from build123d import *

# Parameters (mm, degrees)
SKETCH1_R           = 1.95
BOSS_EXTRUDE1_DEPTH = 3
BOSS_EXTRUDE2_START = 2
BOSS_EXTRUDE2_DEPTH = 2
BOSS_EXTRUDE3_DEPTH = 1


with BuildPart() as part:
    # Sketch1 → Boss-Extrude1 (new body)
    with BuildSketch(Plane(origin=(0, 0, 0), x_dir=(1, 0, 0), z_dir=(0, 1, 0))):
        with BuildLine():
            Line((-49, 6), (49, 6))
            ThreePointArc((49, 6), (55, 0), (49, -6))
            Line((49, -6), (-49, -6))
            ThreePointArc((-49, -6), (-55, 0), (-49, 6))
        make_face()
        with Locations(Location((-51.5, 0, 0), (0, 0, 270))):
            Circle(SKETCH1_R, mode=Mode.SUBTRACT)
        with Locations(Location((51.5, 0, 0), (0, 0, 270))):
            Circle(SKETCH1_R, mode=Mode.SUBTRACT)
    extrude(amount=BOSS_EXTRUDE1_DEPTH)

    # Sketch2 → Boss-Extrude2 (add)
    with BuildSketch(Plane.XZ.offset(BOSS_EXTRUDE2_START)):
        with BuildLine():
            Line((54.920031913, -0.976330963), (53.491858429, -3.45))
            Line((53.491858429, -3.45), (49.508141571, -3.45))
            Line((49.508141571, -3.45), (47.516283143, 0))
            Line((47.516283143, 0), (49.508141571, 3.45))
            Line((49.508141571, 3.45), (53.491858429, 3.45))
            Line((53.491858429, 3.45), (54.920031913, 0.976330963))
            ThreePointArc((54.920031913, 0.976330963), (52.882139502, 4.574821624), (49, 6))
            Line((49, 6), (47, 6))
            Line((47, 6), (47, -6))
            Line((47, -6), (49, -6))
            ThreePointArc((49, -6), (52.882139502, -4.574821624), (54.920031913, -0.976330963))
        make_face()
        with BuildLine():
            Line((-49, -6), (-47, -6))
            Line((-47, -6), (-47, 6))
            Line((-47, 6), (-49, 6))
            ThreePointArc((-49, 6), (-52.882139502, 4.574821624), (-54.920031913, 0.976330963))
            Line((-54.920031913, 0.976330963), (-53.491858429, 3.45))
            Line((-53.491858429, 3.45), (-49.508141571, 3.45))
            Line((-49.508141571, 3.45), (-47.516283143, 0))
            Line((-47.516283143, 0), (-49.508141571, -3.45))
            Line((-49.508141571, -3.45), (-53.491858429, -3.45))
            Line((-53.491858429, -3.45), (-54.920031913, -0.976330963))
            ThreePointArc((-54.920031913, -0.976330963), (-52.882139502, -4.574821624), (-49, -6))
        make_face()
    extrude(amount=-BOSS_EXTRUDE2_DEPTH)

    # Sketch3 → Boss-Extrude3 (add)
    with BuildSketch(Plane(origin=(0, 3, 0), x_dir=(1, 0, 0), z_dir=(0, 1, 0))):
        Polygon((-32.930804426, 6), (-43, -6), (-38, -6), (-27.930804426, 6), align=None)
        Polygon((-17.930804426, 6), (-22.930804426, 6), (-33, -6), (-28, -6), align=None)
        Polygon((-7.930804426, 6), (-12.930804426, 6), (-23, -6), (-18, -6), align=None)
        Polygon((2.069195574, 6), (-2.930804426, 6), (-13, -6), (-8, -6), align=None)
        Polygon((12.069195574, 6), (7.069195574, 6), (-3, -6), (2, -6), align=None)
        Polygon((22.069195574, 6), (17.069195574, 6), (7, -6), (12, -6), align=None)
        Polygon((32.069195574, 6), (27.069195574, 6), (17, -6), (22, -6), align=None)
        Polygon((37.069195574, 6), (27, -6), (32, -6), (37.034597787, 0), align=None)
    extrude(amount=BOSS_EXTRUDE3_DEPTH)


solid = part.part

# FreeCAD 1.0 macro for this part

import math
import FreeCAD as App
import Part
import Sketcher
Q = App.Units.Quantity


def add_polygon(sketch, points):
    """Adds a closed chain of lines whose ends are joined by coincident constraints."""
    first, n = sketch.GeometryCount, len(points)
    for a, b in zip(points, points[1:] + points[:1]):
        sketch.addGeometry(Part.LineSegment(App.Vector(*a, 0), App.Vector(*b, 0)), False)
    for i in range(n):
        sketch.addConstraint(Sketcher.Constraint("Coincident", first + i, 2, first + (i + 1) % n, 1))

doc = App.newDocument("Part")
params = doc.addObject("Spreadsheet::Sheet", "Params")
for row, (alias, value) in enumerate([
    ("sketch1_radius", "6 mm"),
    ("sketch1_diameter", "3.9 mm"),
    ("sketch1_width", "98 mm"),
    ("pad1_length", "3 mm"),
    ("sketch2_radius", "6 mm"),
    ("sketch2_width", "2 mm"),
    ("pad2_length", "2 mm"),
    ("sketch3_width", "5 mm"),
    ("pad3_length", "1 mm"),
], start=1):
    params.set(f"A{row}", alias)
    params.set(f"B{row}", "=" + value)
    params.setAlias(f"B{row}", alias)

body = doc.addObject("PartDesign::Body", "Body")

sketch1 = body.newObject("Sketcher::SketchObject", "Sketch")
sketch1.AttachmentSupport = (doc.getObject("XZ_Plane"), [""])
sketch1.MapMode = "FlatFace"
sketch1.addGeometry([
    Part.LineSegment(App.Vector(49, -6, 0), App.Vector(-49, -6, 0)),
    Part.ArcOfCircle(Part.Circle(App.Vector(-49, 0, 0), App.Vector(0, 0, 1), 6), math.radians(90), math.radians(270)),
    Part.LineSegment(App.Vector(-49, 6, 0), App.Vector(49, 6, 0)),
    Part.ArcOfCircle(Part.Circle(App.Vector(49, 0, 0), App.Vector(0, 0, 1), 6), math.radians(-90), math.radians(90)),
    Part.Circle(App.Vector(51.5, 0, 0), App.Vector(0, 0, 1), 1.95),
    Part.Circle(App.Vector(-51.5, 0, 0), App.Vector(0, 0, 1), 1.95),
], False)
sketch1.addConstraint([
    Sketcher.Constraint("Tangent", 0, 2, 1, 2),
    Sketcher.Constraint("Tangent", 1, 1, 2, 1),
    Sketcher.Constraint("Tangent", 2, 2, 3, 2),
    Sketcher.Constraint("Tangent", 3, 1, 0, 1),
    Sketcher.Constraint("Horizontal", 0),
    Sketcher.Constraint("Horizontal", 2),
    Sketcher.Constraint("Equal", 4, 5),
    Sketcher.Constraint("Symmetric", 1, 3, 3, 3, -1, 1),
    Sketcher.Constraint("Symmetric", 4, 3, 5, 3, -1, 1),
    Sketcher.Constraint("PointOnObject", 4, 3, -1),
    Sketcher.Constraint("Radius", 1, 6.0),
    Sketcher.Constraint("Diameter", 4, 3.9),
    Sketcher.Constraint("DistanceX", 0, 2, 0, 1, 98.0),
    Sketcher.Constraint("DistanceX", 5, 3, 4, 3, 103.0),
])
sketch1.setExpression("Constraints[10]", "Params.sketch1_radius")
sketch1.setExpression("Constraints[11]", "Params.sketch1_diameter")
sketch1.setExpression("Constraints[12]", "Params.sketch1_width")
pad1 = body.newObject("PartDesign::Pad", "Pad")
pad1.Profile = sketch1
pad1.setExpression("Length", "Params.pad1_length")
pad1.Reversed = True

sketch2 = body.newObject("Sketcher::SketchObject", "Sketch001")
sketch2.AttachmentSupport = (doc.getObject("XZ_Plane"), [""])
sketch2.MapMode = "FlatFace"
sketch2.AttachmentOffset = App.Placement(App.Vector(0, 0, 2), App.Rotation())
sketch2.addGeometry([
    Part.LineSegment(App.Vector(54.920032, -0.976331, 0), App.Vector(53.491858, -3.45, 0)),
    Part.LineSegment(App.Vector(53.491858, -3.45, 0), App.Vector(49.508142, -3.45, 0)),
    Part.LineSegment(App.Vector(49.508142, -3.45, 0), App.Vector(47.516283, 0, 0)),
    Part.LineSegment(App.Vector(47.516283, 0, 0), App.Vector(49.508142, 3.45, 0)),
    Part.LineSegment(App.Vector(49.508142, 3.45, 0), App.Vector(53.491858, 3.45, 0)),
    Part.LineSegment(App.Vector(53.491858, 3.45, 0), App.Vector(54.920032, 0.976331, 0)),
    Part.ArcOfCircle(Part.Circle(App.Vector(49, 0, 0), App.Vector(0, 0, 1), 6), math.radians(9.364916), math.radians(90)),
    Part.LineSegment(App.Vector(49, 6, 0), App.Vector(47, 6, 0)),
    Part.LineSegment(App.Vector(47, 6, 0), App.Vector(47, -6, 0)),
    Part.LineSegment(App.Vector(47, -6, 0), App.Vector(49, -6, 0)),
    Part.ArcOfCircle(Part.Circle(App.Vector(49, 0, 0), App.Vector(0, 0, 1), 6), math.radians(-90), math.radians(-9.364916)),
    Part.LineSegment(App.Vector(-49, -6, 0), App.Vector(-47, -6, 0)),
    Part.LineSegment(App.Vector(-47, -6, 0), App.Vector(-47, 6, 0)),
    Part.LineSegment(App.Vector(-47, 6, 0), App.Vector(-49, 6, 0)),
    Part.ArcOfCircle(Part.Circle(App.Vector(-49, 0, 0), App.Vector(0, 0, 1), 6), math.radians(90), math.radians(170.635084)),
    Part.LineSegment(App.Vector(-54.920032, 0.976331, 0), App.Vector(-53.491858, 3.45, 0)),
    Part.LineSegment(App.Vector(-53.491858, 3.45, 0), App.Vector(-49.508142, 3.45, 0)),
    Part.LineSegment(App.Vector(-49.508142, 3.45, 0), App.Vector(-47.516283, 0, 0)),
    Part.LineSegment(App.Vector(-47.516283, 0, 0), App.Vector(-49.508142, -3.45, 0)),
    Part.LineSegment(App.Vector(-49.508142, -3.45, 0), App.Vector(-53.491858, -3.45, 0)),
    Part.LineSegment(App.Vector(-53.491858, -3.45, 0), App.Vector(-54.920032, -0.976331, 0)),
    Part.ArcOfCircle(Part.Circle(App.Vector(-49, 0, 0), App.Vector(0, 0, 1), 6), math.radians(-170.635084), math.radians(-90)),
], False)
sketch2.addConstraint([
    Sketcher.Constraint("Coincident", 0, 2, 1, 1),
    Sketcher.Constraint("Coincident", 1, 2, 2, 1),
    Sketcher.Constraint("Coincident", 2, 2, 3, 1),
    Sketcher.Constraint("Coincident", 3, 2, 4, 1),
    Sketcher.Constraint("Coincident", 4, 2, 5, 1),
    Sketcher.Constraint("Coincident", 5, 2, 6, 1),
    Sketcher.Constraint("Tangent", 6, 2, 7, 1),
    Sketcher.Constraint("Coincident", 7, 2, 8, 1),
    Sketcher.Constraint("Coincident", 8, 2, 9, 1),
    Sketcher.Constraint("Tangent", 9, 2, 10, 1),
    Sketcher.Constraint("Coincident", 10, 2, 0, 1),
    Sketcher.Constraint("Coincident", 11, 2, 12, 1),
    Sketcher.Constraint("Coincident", 12, 2, 13, 1),
    Sketcher.Constraint("Tangent", 13, 2, 14, 1),
    Sketcher.Constraint("Coincident", 14, 2, 15, 1),
    Sketcher.Constraint("Coincident", 15, 2, 16, 1),
    Sketcher.Constraint("Coincident", 16, 2, 17, 1),
    Sketcher.Constraint("Coincident", 17, 2, 18, 1),
    Sketcher.Constraint("Coincident", 18, 2, 19, 1),
    Sketcher.Constraint("Coincident", 19, 2, 20, 1),
    Sketcher.Constraint("Coincident", 20, 2, 21, 1),
    Sketcher.Constraint("Tangent", 21, 2, 11, 1),
    Sketcher.Constraint("Horizontal", 1),
    Sketcher.Constraint("Horizontal", 4),
    Sketcher.Constraint("Horizontal", 7),
    Sketcher.Constraint("Vertical", 8),
    Sketcher.Constraint("Horizontal", 9),
    Sketcher.Constraint("Horizontal", 11),
    Sketcher.Constraint("Vertical", 12),
    Sketcher.Constraint("Horizontal", 13),
    Sketcher.Constraint("Horizontal", 16),
    Sketcher.Constraint("Horizontal", 19),
    Sketcher.Constraint("Coincident", 10, 3, 6, 3),
    Sketcher.Constraint("Coincident", 21, 3, 14, 3),
    Sketcher.Constraint("Equal", 6, 10),
    Sketcher.Constraint("Equal", 10, 14),
    Sketcher.Constraint("Equal", 14, 21),
    Sketcher.Constraint("Symmetric", 6, 3, 14, 3, -1, 1),
    Sketcher.Constraint("Symmetric", 0, 2, 15, 2, -1, 1),
    Sketcher.Constraint("Symmetric", 2, 2, 17, 2, -1, 1),
    Sketcher.Constraint("Symmetric", 3, 2, 18, 2, -1, 1),
    Sketcher.Constraint("Symmetric", 8, 2, 11, 2, -2),
    Sketcher.Constraint("Symmetric", 4, 2, 15, 2, -2),
    Sketcher.Constraint("PointOnObject", 2, 2, -1),
    Sketcher.Constraint("Parallel", 0, 3),
    Sketcher.Constraint("Parallel", 2, 5),
    Sketcher.Constraint("Parallel", 3, 15),
    Sketcher.Constraint("Parallel", 5, 17),
    Sketcher.Constraint("Parallel", 17, 20),
    Sketcher.Constraint("Horizontal", 5, 2, 14, 2),
    Sketcher.Constraint("Horizontal", 10, 2, 20, 2),
    Sketcher.Constraint("Radius", 6, 6.0),
    Sketcher.Constraint("DistanceX", 7, 2, 7, 1, 2.0),
    Sketcher.Constraint("Angle", 0, Q("-120 deg")),
    Sketcher.Constraint("DistanceX", -1, 1, 6, 3, 49.0),
    Sketcher.Constraint("DistanceY", 1, 2, 3, 2, 6.9),
    Sketcher.Constraint("DistanceX", 1, 2, 1, 1, 3.983717),
    Sketcher.Constraint("DistanceX", -1, 1, 0, 2, 53.491858),
])
sketch2.setExpression("Constraints[51]", "Params.sketch2_radius")
sketch2.setExpression("Constraints[52]", "Params.sketch2_width")
pad2 = body.newObject("PartDesign::Pad", "Pad001")
pad2.Profile = sketch2
pad2.setExpression("Length", "Params.pad2_length")
pad2.Reversed = True

sketch3 = body.newObject("Sketcher::SketchObject", "Sketch002")
sketch3.AttachmentSupport = (doc.getObject("XZ_Plane"), [""])
sketch3.MapMode = "FlatFace"
sketch3.AttachmentOffset = App.Placement(App.Vector(0, 0, -3), App.Rotation())
add_polygon(sketch3, [(-32.930804, -6), (-43, 6), (-38, 6), (-27.930804, -6)])
add_polygon(sketch3, [(-17.930804, -6), (-22.930804, -6), (-33, 6), (-28, 6)])
add_polygon(sketch3, [(-7.930804, -6), (-12.930804, -6), (-23, 6), (-18, 6)])
add_polygon(sketch3, [(2.069196, -6), (-2.930804, -6), (-13, 6), (-8, 6)])
add_polygon(sketch3, [(12.069196, -6), (7.069196, -6), (-3, 6), (2, 6)])
add_polygon(sketch3, [(22.069196, -6), (17.069196, -6), (7, 6), (12, 6)])
add_polygon(sketch3, [(32.069196, -6), (27.069196, -6), (17, 6), (22, 6)])
add_polygon(sketch3, [(37.069196, -6), (27, 6), (32, 6), (37.034598, 0)])
sketch3.addConstraint([
    Sketcher.Constraint("Horizontal", 1),
    Sketcher.Constraint("Horizontal", 3),
    Sketcher.Constraint("Horizontal", 4),
    Sketcher.Constraint("Horizontal", 6),
    Sketcher.Constraint("Horizontal", 8),
    Sketcher.Constraint("Horizontal", 10),
    Sketcher.Constraint("Horizontal", 12),
    Sketcher.Constraint("Horizontal", 14),
    Sketcher.Constraint("Horizontal", 16),
    Sketcher.Constraint("Horizontal", 18),
    Sketcher.Constraint("Horizontal", 20),
    Sketcher.Constraint("Horizontal", 22),
    Sketcher.Constraint("Horizontal", 24),
    Sketcher.Constraint("Horizontal", 26),
    Sketcher.Constraint("Horizontal", 29),
    Sketcher.Constraint("PointOnObject", 30, 2, -1),
    Sketcher.Constraint("Parallel", 0, 2),
    Sketcher.Constraint("Parallel", 2, 5),
    Sketcher.Constraint("Parallel", 5, 7),
    Sketcher.Constraint("Parallel", 7, 9),
    Sketcher.Constraint("Parallel", 9, 11),
    Sketcher.Constraint("Parallel", 11, 13),
    Sketcher.Constraint("Parallel", 13, 15),
    Sketcher.Constraint("Parallel", 15, 17),
    Sketcher.Constraint("Parallel", 17, 19),
    Sketcher.Constraint("Parallel", 19, 21),
    Sketcher.Constraint("Parallel", 21, 23),
    Sketcher.Constraint("Parallel", 23, 25),
    Sketcher.Constraint("Parallel", 25, 27),
    Sketcher.Constraint("Parallel", 27, 28),
    Sketcher.Constraint("Parallel", 28, 30),
    Sketcher.Constraint("Horizontal", 3, 2, 4, 2),
    Sketcher.Constraint("Horizontal", 1, 2, 5, 2),
    Sketcher.Constraint("Horizontal", 7, 2, 8, 2),
    Sketcher.Constraint("Horizontal", 6, 2, 9, 2),
    Sketcher.Constraint("Horizontal", 11, 2, 12, 2),
    Sketcher.Constraint("Horizontal", 10, 2, 13, 2),
    Sketcher.Constraint("Horizontal", 15, 2, 16, 2),
    Sketcher.Constraint("Horizontal", 14, 2, 17, 2),
    Sketcher.Constraint("Horizontal", 19, 2, 20, 2),
    Sketcher.Constraint("Horizontal", 18, 2, 21, 2),
    Sketcher.Constraint("Horizontal", 23, 2, 24, 2),
    Sketcher.Constraint("Horizontal", 22, 2, 25, 2),
    Sketcher.Constraint("Horizontal", 26, 2, 28, 2),
    Sketcher.Constraint("Horizontal", 27, 2, 31, 2),
    Sketcher.Constraint("Equal", 3, 4),
    Sketcher.Constraint("Equal", 6, 8),
    Sketcher.Constraint("Equal", 10, 12),
    Sketcher.Constraint("Equal", 14, 16),
    Sketcher.Constraint("Equal", 18, 20),
    Sketcher.Constraint("Equal", 22, 24),
    Sketcher.Constraint("Equal", 26, 29),
    Sketcher.Constraint("DistanceX", 1, 1, 1, 2, 5.0),
    Sketcher.Constraint("Angle", 0, Q("130 deg")),
    Sketcher.Constraint("DistanceX", 0, 2, -1, 1, 43.0),
    Sketcher.Constraint("DistanceY", -1, 1, 0, 2, 6.0),
    Sketcher.Constraint("DistanceY", 2, 2, -1, 1, 6.0),
    Sketcher.Constraint("DistanceX", 5, 2, -1, 1, 33.0),
    Sketcher.Constraint("DistanceX", 9, 2, -1, 1, 23.0),
    Sketcher.Constraint("DistanceX", 13, 2, -1, 1, 13.0),
    Sketcher.Constraint("DistanceX", 17, 2, -1, 1, 3.0),
    Sketcher.Constraint("DistanceX", -1, 1, 21, 2, 7.0),
    Sketcher.Constraint("DistanceX", -1, 1, 25, 2, 17.0),
    Sketcher.Constraint("DistanceX", -1, 1, 28, 2, 27.0),
])
sketch3.setExpression("Constraints[84]", "Params.sketch3_width")
pad3 = body.newObject("PartDesign::Pad", "Pad002")
pad3.Profile = sketch3
pad3.setExpression("Length", "Params.pad3_length")
pad3.Reversed = True

doc.recompute()
